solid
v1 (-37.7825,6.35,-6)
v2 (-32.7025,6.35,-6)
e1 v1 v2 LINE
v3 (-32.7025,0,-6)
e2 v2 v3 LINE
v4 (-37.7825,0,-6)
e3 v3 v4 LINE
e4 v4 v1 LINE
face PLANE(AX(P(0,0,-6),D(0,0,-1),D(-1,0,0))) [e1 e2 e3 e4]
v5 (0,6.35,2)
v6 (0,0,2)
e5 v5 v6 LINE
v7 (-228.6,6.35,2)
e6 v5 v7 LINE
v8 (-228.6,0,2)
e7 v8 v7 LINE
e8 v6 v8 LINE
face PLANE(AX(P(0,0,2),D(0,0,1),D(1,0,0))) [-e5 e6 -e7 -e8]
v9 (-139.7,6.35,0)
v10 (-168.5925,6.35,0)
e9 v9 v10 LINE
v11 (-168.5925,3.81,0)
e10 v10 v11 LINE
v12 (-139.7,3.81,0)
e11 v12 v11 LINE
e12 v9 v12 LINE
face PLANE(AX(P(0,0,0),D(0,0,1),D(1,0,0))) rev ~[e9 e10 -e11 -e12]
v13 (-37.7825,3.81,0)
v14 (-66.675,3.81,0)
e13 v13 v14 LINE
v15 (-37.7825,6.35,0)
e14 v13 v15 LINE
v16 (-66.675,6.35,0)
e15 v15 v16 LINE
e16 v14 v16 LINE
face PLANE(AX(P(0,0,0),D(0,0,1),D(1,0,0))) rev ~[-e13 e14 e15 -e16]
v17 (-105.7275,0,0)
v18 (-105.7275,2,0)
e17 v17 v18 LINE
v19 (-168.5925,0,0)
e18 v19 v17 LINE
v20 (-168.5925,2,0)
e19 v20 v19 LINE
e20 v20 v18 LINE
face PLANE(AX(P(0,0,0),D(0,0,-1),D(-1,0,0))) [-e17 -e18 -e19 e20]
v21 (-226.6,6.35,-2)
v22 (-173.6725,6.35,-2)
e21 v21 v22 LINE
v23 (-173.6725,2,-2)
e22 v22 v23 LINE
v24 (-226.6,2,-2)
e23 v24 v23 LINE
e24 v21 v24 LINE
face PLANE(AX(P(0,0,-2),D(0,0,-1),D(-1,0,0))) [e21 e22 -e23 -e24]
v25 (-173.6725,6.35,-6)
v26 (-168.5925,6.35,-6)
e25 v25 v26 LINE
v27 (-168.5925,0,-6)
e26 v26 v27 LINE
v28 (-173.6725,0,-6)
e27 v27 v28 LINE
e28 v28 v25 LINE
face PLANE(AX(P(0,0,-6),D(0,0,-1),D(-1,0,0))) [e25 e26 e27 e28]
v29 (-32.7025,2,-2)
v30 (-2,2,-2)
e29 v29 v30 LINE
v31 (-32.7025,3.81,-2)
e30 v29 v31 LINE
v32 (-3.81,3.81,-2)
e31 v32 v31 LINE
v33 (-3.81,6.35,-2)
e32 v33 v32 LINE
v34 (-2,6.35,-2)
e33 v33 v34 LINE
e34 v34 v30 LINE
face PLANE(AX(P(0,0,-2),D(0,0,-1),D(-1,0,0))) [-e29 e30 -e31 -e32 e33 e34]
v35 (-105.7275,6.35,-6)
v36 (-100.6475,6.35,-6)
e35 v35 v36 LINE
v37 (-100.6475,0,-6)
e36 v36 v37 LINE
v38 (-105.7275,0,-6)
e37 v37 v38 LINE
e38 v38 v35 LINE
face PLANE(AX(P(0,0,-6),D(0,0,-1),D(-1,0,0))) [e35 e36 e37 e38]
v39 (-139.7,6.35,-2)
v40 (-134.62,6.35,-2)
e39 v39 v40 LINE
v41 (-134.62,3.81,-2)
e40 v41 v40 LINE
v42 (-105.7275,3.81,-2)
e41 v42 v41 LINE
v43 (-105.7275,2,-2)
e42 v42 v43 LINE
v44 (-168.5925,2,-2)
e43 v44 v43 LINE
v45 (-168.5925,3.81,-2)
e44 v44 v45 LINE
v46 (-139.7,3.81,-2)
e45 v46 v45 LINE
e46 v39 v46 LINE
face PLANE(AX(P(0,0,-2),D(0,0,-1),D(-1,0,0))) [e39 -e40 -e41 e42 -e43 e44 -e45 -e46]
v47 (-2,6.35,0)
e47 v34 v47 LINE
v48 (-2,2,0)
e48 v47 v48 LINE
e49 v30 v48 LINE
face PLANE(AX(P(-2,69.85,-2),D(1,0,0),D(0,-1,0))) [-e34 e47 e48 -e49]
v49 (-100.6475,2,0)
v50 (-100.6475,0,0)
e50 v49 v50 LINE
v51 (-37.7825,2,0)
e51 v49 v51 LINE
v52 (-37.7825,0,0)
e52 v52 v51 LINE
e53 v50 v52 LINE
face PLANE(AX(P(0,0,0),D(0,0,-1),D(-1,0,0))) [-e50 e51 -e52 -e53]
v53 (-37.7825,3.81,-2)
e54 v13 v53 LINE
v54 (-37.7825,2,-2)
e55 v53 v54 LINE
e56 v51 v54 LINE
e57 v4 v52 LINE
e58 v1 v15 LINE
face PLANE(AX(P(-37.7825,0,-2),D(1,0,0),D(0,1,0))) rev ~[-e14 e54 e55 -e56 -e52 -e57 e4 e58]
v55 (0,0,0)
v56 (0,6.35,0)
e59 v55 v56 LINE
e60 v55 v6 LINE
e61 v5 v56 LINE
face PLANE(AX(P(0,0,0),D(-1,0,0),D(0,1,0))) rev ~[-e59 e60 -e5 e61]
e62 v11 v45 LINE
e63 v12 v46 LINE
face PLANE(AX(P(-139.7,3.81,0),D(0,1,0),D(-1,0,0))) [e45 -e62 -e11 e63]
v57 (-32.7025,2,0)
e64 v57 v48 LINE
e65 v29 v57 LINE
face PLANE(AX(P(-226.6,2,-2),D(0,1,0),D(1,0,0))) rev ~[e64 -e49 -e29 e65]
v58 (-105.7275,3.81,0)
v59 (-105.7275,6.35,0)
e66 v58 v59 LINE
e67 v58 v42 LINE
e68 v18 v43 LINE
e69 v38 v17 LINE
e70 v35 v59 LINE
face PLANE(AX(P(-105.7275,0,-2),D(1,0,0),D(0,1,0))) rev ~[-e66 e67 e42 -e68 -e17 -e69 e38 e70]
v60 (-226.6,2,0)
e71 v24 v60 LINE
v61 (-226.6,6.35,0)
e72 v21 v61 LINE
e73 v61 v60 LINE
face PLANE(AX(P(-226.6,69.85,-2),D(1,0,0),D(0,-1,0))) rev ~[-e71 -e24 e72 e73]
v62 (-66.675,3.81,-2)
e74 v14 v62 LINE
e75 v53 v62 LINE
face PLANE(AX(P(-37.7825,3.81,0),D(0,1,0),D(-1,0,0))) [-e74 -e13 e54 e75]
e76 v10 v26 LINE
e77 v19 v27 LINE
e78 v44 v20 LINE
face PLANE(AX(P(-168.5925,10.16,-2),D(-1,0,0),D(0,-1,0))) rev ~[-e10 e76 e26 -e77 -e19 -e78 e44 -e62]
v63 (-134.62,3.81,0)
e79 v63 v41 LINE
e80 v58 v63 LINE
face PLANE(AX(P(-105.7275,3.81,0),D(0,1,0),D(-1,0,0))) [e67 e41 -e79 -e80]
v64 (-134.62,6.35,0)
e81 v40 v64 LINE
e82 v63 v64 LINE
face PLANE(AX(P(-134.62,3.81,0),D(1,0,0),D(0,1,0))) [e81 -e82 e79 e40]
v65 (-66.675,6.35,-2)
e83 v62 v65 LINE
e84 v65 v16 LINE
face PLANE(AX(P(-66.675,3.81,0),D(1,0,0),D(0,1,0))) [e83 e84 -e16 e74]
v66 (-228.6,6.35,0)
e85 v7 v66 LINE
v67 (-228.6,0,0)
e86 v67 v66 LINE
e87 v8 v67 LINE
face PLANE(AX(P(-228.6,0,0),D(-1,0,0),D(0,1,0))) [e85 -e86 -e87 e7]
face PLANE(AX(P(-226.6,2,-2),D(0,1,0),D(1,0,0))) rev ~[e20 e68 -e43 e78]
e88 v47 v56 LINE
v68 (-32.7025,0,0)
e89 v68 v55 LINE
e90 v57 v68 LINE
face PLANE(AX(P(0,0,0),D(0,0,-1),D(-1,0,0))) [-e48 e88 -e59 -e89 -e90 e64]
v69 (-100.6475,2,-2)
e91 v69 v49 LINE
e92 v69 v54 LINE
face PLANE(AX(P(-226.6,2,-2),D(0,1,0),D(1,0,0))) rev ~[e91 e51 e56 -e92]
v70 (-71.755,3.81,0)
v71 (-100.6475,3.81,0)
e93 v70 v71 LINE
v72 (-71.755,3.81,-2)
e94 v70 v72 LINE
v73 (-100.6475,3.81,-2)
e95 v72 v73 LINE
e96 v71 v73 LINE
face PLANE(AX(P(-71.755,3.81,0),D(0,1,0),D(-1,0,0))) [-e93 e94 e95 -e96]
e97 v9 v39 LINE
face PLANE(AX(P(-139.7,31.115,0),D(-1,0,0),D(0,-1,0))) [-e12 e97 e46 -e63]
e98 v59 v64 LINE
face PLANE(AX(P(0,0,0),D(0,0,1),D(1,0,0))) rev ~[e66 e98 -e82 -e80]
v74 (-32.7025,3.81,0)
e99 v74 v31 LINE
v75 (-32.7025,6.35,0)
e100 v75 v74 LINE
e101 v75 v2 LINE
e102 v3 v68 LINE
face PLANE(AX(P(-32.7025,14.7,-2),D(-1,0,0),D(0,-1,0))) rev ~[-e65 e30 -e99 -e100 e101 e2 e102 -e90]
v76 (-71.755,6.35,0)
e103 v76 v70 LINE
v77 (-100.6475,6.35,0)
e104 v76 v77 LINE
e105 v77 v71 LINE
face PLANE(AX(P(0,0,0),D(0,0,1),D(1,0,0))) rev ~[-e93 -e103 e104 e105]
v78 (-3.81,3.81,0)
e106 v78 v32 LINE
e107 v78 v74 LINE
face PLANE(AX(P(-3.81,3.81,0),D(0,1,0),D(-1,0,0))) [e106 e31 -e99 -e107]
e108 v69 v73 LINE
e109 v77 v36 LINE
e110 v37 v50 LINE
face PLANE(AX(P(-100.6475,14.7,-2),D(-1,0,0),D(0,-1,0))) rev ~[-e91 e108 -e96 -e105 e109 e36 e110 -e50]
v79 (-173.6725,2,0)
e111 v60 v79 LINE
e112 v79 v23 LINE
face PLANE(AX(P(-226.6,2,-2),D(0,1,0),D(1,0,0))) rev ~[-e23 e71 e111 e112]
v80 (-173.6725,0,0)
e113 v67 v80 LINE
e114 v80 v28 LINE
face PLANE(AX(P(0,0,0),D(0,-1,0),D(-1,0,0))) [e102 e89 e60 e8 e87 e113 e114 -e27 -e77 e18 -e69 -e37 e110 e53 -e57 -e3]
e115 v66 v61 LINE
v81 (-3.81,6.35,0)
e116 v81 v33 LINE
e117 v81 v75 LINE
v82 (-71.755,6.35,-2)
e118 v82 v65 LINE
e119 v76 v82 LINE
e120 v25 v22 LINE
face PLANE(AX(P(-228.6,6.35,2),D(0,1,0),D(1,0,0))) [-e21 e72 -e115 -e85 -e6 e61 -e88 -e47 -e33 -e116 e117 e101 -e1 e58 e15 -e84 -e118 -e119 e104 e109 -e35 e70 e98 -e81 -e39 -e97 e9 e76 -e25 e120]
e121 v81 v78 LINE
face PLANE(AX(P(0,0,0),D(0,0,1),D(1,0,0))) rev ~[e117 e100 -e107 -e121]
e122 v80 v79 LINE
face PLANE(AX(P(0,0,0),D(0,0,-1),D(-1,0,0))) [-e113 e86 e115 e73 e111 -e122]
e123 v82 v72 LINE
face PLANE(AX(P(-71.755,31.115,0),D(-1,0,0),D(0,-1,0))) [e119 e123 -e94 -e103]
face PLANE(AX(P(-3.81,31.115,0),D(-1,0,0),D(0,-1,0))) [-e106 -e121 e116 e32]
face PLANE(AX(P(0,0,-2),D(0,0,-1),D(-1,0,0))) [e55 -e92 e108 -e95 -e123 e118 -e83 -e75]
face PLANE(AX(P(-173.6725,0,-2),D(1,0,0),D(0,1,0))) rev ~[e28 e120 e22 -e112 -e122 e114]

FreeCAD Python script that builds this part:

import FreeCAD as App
import Part
import Sketcher
from FreeCAD import Vector
Q = App.Units.Quantity

doc = App.newDocument("Part")
body = doc.addObject("PartDesign::Body", "Body")

# Sketch on XY plane
sketch1 = doc.addObject("Sketcher::SketchObject", "Sketch")
body.addObject(sketch1)
sketch1.AttachmentSupport = (doc.XY_Plane, [""])
sketch1.MapMode = "FlatFace"
sketch1.addGeometry([
    Part.LineSegment(Vector(-229, 0, 0), Vector(0, 0, 0)),  # 0
    Part.LineSegment(Vector(0, 0, 0), Vector(0, 70, 0)),  # 1
    Part.LineSegment(Vector(0, 70, 0), Vector(-229, 70, 0)),  # 2
    Part.LineSegment(Vector(-229, 70, 0), Vector(-229, 0, 0)),  # 3
    Part.Circle(Vector(-213, 18, 0), Vector(0, 0, 1), 7),  # 4
    Part.Circle(Vector(-182, 18, 0), Vector(0, 0, 1), 7),  # 5
    Part.LineSegment(Vector(-142, 29, 0), Vector(-142, 6, 0)),  # 6
    Part.LineSegment(Vector(-142, 6, 0), Vector(-166, 6, 0)),  # 7
    Part.LineSegment(Vector(-166, 6, 0), Vector(-166, 29, 0)),  # 8
    Part.LineSegment(Vector(-166, 29, 0), Vector(-142, 29, 0)),  # 9
    Part.LineSegment(Vector(-108, 29, 0), Vector(-108, 6, 0)),  # 10
    Part.LineSegment(Vector(-108, 6, 0), Vector(-132, 6, 0)),  # 11
    Part.LineSegment(Vector(-132, 6, 0), Vector(-132, 29, 0)),  # 12
    Part.LineSegment(Vector(-132, 29, 0), Vector(-108, 29, 0)),  # 13
    Part.LineSegment(Vector(-74, 29, 0), Vector(-74, 6, 0)),  # 14
    Part.LineSegment(Vector(-74, 6, 0), Vector(-98, 6, 0)),  # 15
    Part.LineSegment(Vector(-98, 6, 0), Vector(-98, 29, 0)),  # 16
    Part.LineSegment(Vector(-98, 29, 0), Vector(-74, 29, 0)),  # 17
    Part.LineSegment(Vector(-40, 29, 0), Vector(-40, 6, 0)),  # 18
    Part.LineSegment(Vector(-40, 6, 0), Vector(-64, 6, 0)),  # 19
    Part.LineSegment(Vector(-64, 6, 0), Vector(-64, 29, 0)),  # 20
    Part.LineSegment(Vector(-64, 29, 0), Vector(-40, 29, 0)),  # 21
    Part.LineSegment(Vector(-6, 29, 0), Vector(-6, 6, 0)),  # 22
    Part.LineSegment(Vector(-6, 6, 0), Vector(-30, 6, 0)),  # 23
    Part.LineSegment(Vector(-30, 6, 0), Vector(-30, 29, 0)),  # 24
    Part.LineSegment(Vector(-30, 29, 0), Vector(-6, 29, 0)),  # 25
    Part.Circle(Vector(-213, 37, 0), Vector(0, 0, 1), 7),  # 26
    Part.Circle(Vector(-182, 37, 0), Vector(0, 0, 1), 7),  # 27
    Part.LineSegment(Vector(-142, 62, 0), Vector(-142, 40, 0)),  # 28
    Part.LineSegment(Vector(-142, 40, 0), Vector(-166, 40, 0)),  # 29
    Part.LineSegment(Vector(-166, 40, 0), Vector(-166, 62, 0)),  # 30
    Part.LineSegment(Vector(-166, 62, 0), Vector(-142, 62, 0)),  # 31
    Part.LineSegment(Vector(-108, 62, 0), Vector(-108, 40, 0)),  # 32
    Part.LineSegment(Vector(-108, 40, 0), Vector(-132, 40, 0)),  # 33
    Part.LineSegment(Vector(-132, 40, 0), Vector(-132, 62, 0)),  # 34
    Part.LineSegment(Vector(-132, 62, 0), Vector(-108, 62, 0)),  # 35
    Part.Circle(Vector(-213, 56, 0), Vector(0, 0, 1), 7),  # 36
    Part.Circle(Vector(-182, 56, 0), Vector(0, 0, 1), 7),  # 37
    Part.LineSegment(Vector(-74, 62, 0), Vector(-74, 40, 0)),  # 38
    Part.LineSegment(Vector(-74, 40, 0), Vector(-98, 40, 0)),  # 39
    Part.LineSegment(Vector(-98, 40, 0), Vector(-98, 62, 0)),  # 40
    Part.LineSegment(Vector(-98, 62, 0), Vector(-74, 62, 0)),  # 41
    Part.LineSegment(Vector(-40, 62, 0), Vector(-40, 40, 0)),  # 42
    Part.LineSegment(Vector(-40, 40, 0), Vector(-64, 40, 0)),  # 43
    Part.LineSegment(Vector(-64, 40, 0), Vector(-64, 62, 0)),  # 44
    Part.LineSegment(Vector(-64, 62, 0), Vector(-40, 62, 0)),  # 45
    Part.LineSegment(Vector(-6, 62, 0), Vector(-6, 40, 0)),  # 46
    Part.LineSegment(Vector(-6, 40, 0), Vector(-30, 40, 0)),  # 47
    Part.LineSegment(Vector(-30, 40, 0), Vector(-30, 62, 0)),  # 48
    Part.LineSegment(Vector(-30, 62, 0), Vector(-6, 62, 0)),  # 49
], False)
sketch1.addConstraint([
    Sketcher.Constraint("Coincident", 0, 2, 1, 1),
    Sketcher.Constraint("Coincident", 1, 2, 2, 1),
    Sketcher.Constraint("Coincident", 2, 2, 3, 1),
    Sketcher.Constraint("Coincident", 3, 2, 0, 1),
    Sketcher.Constraint("Coincident", 6, 2, 7, 1),
    Sketcher.Constraint("Coincident", 7, 2, 8, 1),
    Sketcher.Constraint("Coincident", 8, 2, 9, 1),
    Sketcher.Constraint("Coincident", 9, 2, 6, 1),
    Sketcher.Constraint("Coincident", 10, 2, 11, 1),
    Sketcher.Constraint("Coincident", 11, 2, 12, 1),
    Sketcher.Constraint("Coincident", 12, 2, 13, 1),
    Sketcher.Constraint("Coincident", 13, 2, 10, 1),
    Sketcher.Constraint("Coincident", 14, 2, 15, 1),
    Sketcher.Constraint("Coincident", 15, 2, 16, 1),
    Sketcher.Constraint("Coincident", 16, 2, 17, 1),
    Sketcher.Constraint("Coincident", 17, 2, 14, 1),
    Sketcher.Constraint("Coincident", 18, 2, 19, 1),
    Sketcher.Constraint("Coincident", 19, 2, 20, 1),
    Sketcher.Constraint("Coincident", 20, 2, 21, 1),
    Sketcher.Constraint("Coincident", 21, 2, 18, 1),
    Sketcher.Constraint("Coincident", 22, 2, 23, 1),
    Sketcher.Constraint("Coincident", 23, 2, 24, 1),
    Sketcher.Constraint("Coincident", 24, 2, 25, 1),
    Sketcher.Constraint("Coincident", 25, 2, 22, 1),
    Sketcher.Constraint("Coincident", 28, 2, 29, 1),
    Sketcher.Constraint("Coincident", 29, 2, 30, 1),
    Sketcher.Constraint("Coincident", 30, 2, 31, 1),
    Sketcher.Constraint("Coincident", 31, 2, 28, 1),
    Sketcher.Constraint("Coincident", 32, 2, 33, 1),
    Sketcher.Constraint("Coincident", 33, 2, 34, 1),
    Sketcher.Constraint("Coincident", 34, 2, 35, 1),
    Sketcher.Constraint("Coincident", 35, 2, 32, 1),
    Sketcher.Constraint("Coincident", 38, 2, 39, 1),
    Sketcher.Constraint("Coincident", 39, 2, 40, 1),
    Sketcher.Constraint("Coincident", 40, 2, 41, 1),
    Sketcher.Constraint("Coincident", 41, 2, 38, 1),
    Sketcher.Constraint("Coincident", 42, 2, 43, 1),
    Sketcher.Constraint("Coincident", 43, 2, 44, 1),
    Sketcher.Constraint("Coincident", 44, 2, 45, 1),
    Sketcher.Constraint("Coincident", 45, 2, 42, 1),
    Sketcher.Constraint("Coincident", 46, 2, 47, 1),
    Sketcher.Constraint("Coincident", 47, 2, 48, 1),
    Sketcher.Constraint("Coincident", 48, 2, 49, 1),
    Sketcher.Constraint("Coincident", 49, 2, 46, 1),
    Sketcher.Constraint("Horizontal", 0),
    Sketcher.Constraint("Vertical", 1),
    Sketcher.Constraint("Horizontal", 2),
    Sketcher.Constraint("Vertical", 3),
    Sketcher.Constraint("Vertical", 6),
    Sketcher.Constraint("Horizontal", 7),
    Sketcher.Constraint("Vertical", 8),
    Sketcher.Constraint("Horizontal", 9),
    Sketcher.Constraint("Vertical", 10),
    Sketcher.Constraint("Horizontal", 11),
    Sketcher.Constraint("Vertical", 12),
    Sketcher.Constraint("Horizontal", 13),
    Sketcher.Constraint("Vertical", 14),
    Sketcher.Constraint("Horizontal", 15),
    Sketcher.Constraint("Vertical", 16),
    Sketcher.Constraint("Horizontal", 17),
    Sketcher.Constraint("Vertical", 18),
    Sketcher.Constraint("Horizontal", 19),
    Sketcher.Constraint("Vertical", 20),
    Sketcher.Constraint("Horizontal", 21),
    Sketcher.Constraint("Vertical", 22),
    Sketcher.Constraint("Horizontal", 23),
    Sketcher.Constraint("Vertical", 24),
    Sketcher.Constraint("Horizontal", 25),
    Sketcher.Constraint("Vertical", 28),
    Sketcher.Constraint("Horizontal", 29),
    Sketcher.Constraint("Vertical", 30),
    Sketcher.Constraint("Horizontal", 31),
    Sketcher.Constraint("Vertical", 32),
    Sketcher.Constraint("Horizontal", 33),
    Sketcher.Constraint("Vertical", 34),
    Sketcher.Constraint("Horizontal", 35),
    Sketcher.Constraint("Vertical", 38),
    Sketcher.Constraint("Horizontal", 39),
    Sketcher.Constraint("Vertical", 40),
    Sketcher.Constraint("Horizontal", 41),
    Sketcher.Constraint("Vertical", 42),
    Sketcher.Constraint("Horizontal", 43),
    Sketcher.Constraint("Vertical", 44),
    Sketcher.Constraint("Horizontal", 45),
    Sketcher.Constraint("Vertical", 46),
    Sketcher.Constraint("Horizontal", 47),
    Sketcher.Constraint("Vertical", 48),
    Sketcher.Constraint("Horizontal", 49),
    Sketcher.Constraint("Coincident", 0, 2, -1, 1),
    Sketcher.Constraint("Equal", 4, 5),
    Sketcher.Constraint("Equal", 5, 26),
    Sketcher.Constraint("Equal", 26, 27),
    Sketcher.Constraint("Equal", 27, 36),
    Sketcher.Constraint("Equal", 36, 37),
    Sketcher.Constraint("Horizontal", 4, 3, 5, 3),
    Sketcher.Constraint("Horizontal", 26, 3, 27, 3),
    Sketcher.Constraint("Horizontal", 36, 3, 37, 3),
    Sketcher.Constraint("Horizontal", 7, 2, 10, 2),
    Sketcher.Constraint("Horizontal", 9, 2, 12, 2),
    Sketcher.Constraint("Horizontal", 11, 2, 14, 2),
    Sketcher.Constraint("Horizontal", 13, 2, 16, 2),
    Sketcher.Constraint("Horizontal", 15, 2, 18, 2),
    Sketcher.Constraint("Horizontal", 17, 2, 20, 2),
    Sketcher.Constraint("Horizontal", 19, 2, 22, 2),
    Sketcher.Constraint("Horizontal", 21, 2, 24, 2),
    Sketcher.Constraint("Horizontal", 29, 2, 32, 2),
    Sketcher.Constraint("Horizontal", 31, 2, 34, 2),
    Sketcher.Constraint("Horizontal", 33, 2, 38, 2),
    Sketcher.Constraint("Horizontal", 35, 2, 40, 2),
    Sketcher.Constraint("Horizontal", 39, 2, 42, 2),
    Sketcher.Constraint("Horizontal", 41, 2, 44, 2),
    Sketcher.Constraint("Horizontal", 43, 2, 46, 2),
    Sketcher.Constraint("Horizontal", 45, 2, 48, 2),
    Sketcher.Constraint("Vertical", 4, 3, 26, 3),
    Sketcher.Constraint("Vertical", 5, 3, 27, 3),
    Sketcher.Constraint("Vertical", 26, 3, 36, 3),
    Sketcher.Constraint("Vertical", 27, 3, 37, 3),
    Sketcher.Constraint("Vertical", 9, 2, 28, 2),
    Sketcher.Constraint("Vertical", 8, 2, 29, 2),
    Sketcher.Constraint("Vertical", 13, 2, 32, 2),
    Sketcher.Constraint("Vertical", 12, 2, 33, 2),
    Sketcher.Constraint("Vertical", 17, 2, 38, 2),
    Sketcher.Constraint("Vertical", 16, 2, 39, 2),
    Sketcher.Constraint("Vertical", 21, 2, 42, 2),
    Sketcher.Constraint("Vertical", 20, 2, 43, 2),
    Sketcher.Constraint("Vertical", 25, 2, 46, 2),
    Sketcher.Constraint("Vertical", 24, 2, 47, 2),
    Sketcher.Constraint("Equal", 9, 11),
    Sketcher.Constraint("Equal", 13, 15),
    Sketcher.Constraint("Equal", 17, 19),
    Sketcher.Constraint("Equal", 21, 23),
    Sketcher.Constraint("Equal", 24, 28),
    Sketcher.Constraint("DistanceX", 0, 1, 0, 2, Q("9 in")),
    Sketcher.Constraint("Diameter", 4, Q("0.515 in")),
    Sketcher.Constraint("DistanceY", 1, 1, 1, 2, Q("2.75 in")),
    Sketcher.Constraint("DistanceX", 7, 2, 7, 1, Q("0.9375 in")),
    Sketcher.Constraint("DistanceY", 6, 2, 6, 1, Q("0.875 in")),
    Sketcher.Constraint("DistanceY", -1, 1, 6, 2, Q("0.25 in")),
    Sketcher.Constraint("DistanceX", 22, 2, -1, 1, Q("0.25 in")),
    Sketcher.Constraint("DistanceY", 4, 3, 26, 3, Q("0.75 in")),
    Sketcher.Constraint("DistanceY", 26, 3, 36, 3, Q("0.75 in")),
    Sketcher.Constraint("DistanceY", 6, 2, 28, 2, Q("1.325 in")),
    Sketcher.Constraint("DistanceX", 6, 2, -1, 1, Q("5.6 in")),
    Sketcher.Constraint("DistanceX", 11, 2, -1, 1, Q("5.2 in")),
    Sketcher.Constraint("DistanceY", 37, 3, 1, 2, Q("0.5575 in")),
    Sketcher.Constraint("DistanceX", 10, 2, 14, 2, Q("1.3375 in")),
    Sketcher.Constraint("DistanceX", 14, 2, 18, 2, Q("1.3375 in")),
    Sketcher.Constraint("DistanceX", 5, 3, 10, 2, Q("2.8906299 in")),
    Sketcher.Constraint("DistanceX", 4, 3, -1, 1, 212.963),
])
pad1 = doc.addObject("PartDesign::Pad", "Pad")
body.addObject(pad1)
pad1.Profile = sketch1
pad1.Length = 2

# Sketch on XY plane
sketch2 = doc.addObject("Sketcher::SketchObject", "Sketch001")
body.addObject(sketch2)
sketch2.AttachmentSupport = (doc.XY_Plane, [""])
sketch2.MapMode = "FlatFace"
sketch2.addGeometry([
    Part.LineSegment(Vector(-229, 0, 0), Vector(-229, 70, 0)),  # 0
    Part.LineSegment(Vector(-229, 70, 0), Vector(0, 70, 0)),  # 1
    Part.LineSegment(Vector(0, 70, 0), Vector(0, 0, 0)),  # 2
    Part.LineSegment(Vector(0, 0, 0), Vector(-229, 0, 0)),  # 3
    Part.LineSegment(Vector(-33, 4, 0), Vector(-4, 4, 0)),  # 4
    Part.LineSegment(Vector(-4, 4, 0), Vector(-4, 31, 0)),  # 5
    Part.LineSegment(Vector(-4, 31, 0), Vector(-33, 31, 0)),  # 6
    Part.LineSegment(Vector(-33, 31, 0), Vector(-33, 4, 0)),  # 7
    Part.LineSegment(Vector(-67, 4, 0), Vector(-38, 4, 0)),  # 8
    Part.LineSegment(Vector(-38, 4, 0), Vector(-38, 31, 0)),  # 9
    Part.LineSegment(Vector(-38, 31, 0), Vector(-67, 31, 0)),  # 10
    Part.LineSegment(Vector(-67, 31, 0), Vector(-67, 4, 0)),  # 11
    Part.LineSegment(Vector(-101, 4, 0), Vector(-72, 4, 0)),  # 12
    Part.LineSegment(Vector(-72, 4, 0), Vector(-72, 31, 0)),  # 13
    Part.LineSegment(Vector(-72, 31, 0), Vector(-101, 31, 0)),  # 14
    Part.LineSegment(Vector(-101, 31, 0), Vector(-101, 4, 0)),  # 15
    Part.LineSegment(Vector(-135, 4, 0), Vector(-106, 4, 0)),  # 16
    Part.LineSegment(Vector(-106, 4, 0), Vector(-106, 31, 0)),  # 17
    Part.LineSegment(Vector(-106, 31, 0), Vector(-135, 31, 0)),  # 18
    Part.LineSegment(Vector(-135, 31, 0), Vector(-135, 4, 0)),  # 19
    Part.LineSegment(Vector(-169, 4, 0), Vector(-140, 4, 0)),  # 20
    Part.LineSegment(Vector(-140, 4, 0), Vector(-140, 31, 0)),  # 21
    Part.LineSegment(Vector(-140, 31, 0), Vector(-169, 31, 0)),  # 22
    Part.LineSegment(Vector(-169, 31, 0), Vector(-169, 4, 0)),  # 23
    Part.Circle(Vector(-182, 18, 0), Vector(0, 0, 1), 9),  # 24
    Part.Circle(Vector(-213, 18, 0), Vector(0, 0, 1), 9),  # 25
    Part.LineSegment(Vector(-33, 37, 0), Vector(-4, 37, 0)),  # 26
    Part.LineSegment(Vector(-4, 37, 0), Vector(-4, 65, 0)),  # 27
    Part.LineSegment(Vector(-4, 65, 0), Vector(-33, 65, 0)),  # 28
    Part.LineSegment(Vector(-33, 65, 0), Vector(-33, 37, 0)),  # 29
    Part.LineSegment(Vector(-67, 37, 0), Vector(-38, 37, 0)),  # 30
    Part.LineSegment(Vector(-38, 37, 0), Vector(-38, 65, 0)),  # 31
    Part.LineSegment(Vector(-38, 65, 0), Vector(-67, 65, 0)),  # 32
    Part.LineSegment(Vector(-67, 65, 0), Vector(-67, 37, 0)),  # 33
    Part.LineSegment(Vector(-101, 37, 0), Vector(-72, 37, 0)),  # 34
    Part.LineSegment(Vector(-72, 37, 0), Vector(-72, 65, 0)),  # 35
    Part.LineSegment(Vector(-72, 65, 0), Vector(-101, 65, 0)),  # 36
    Part.LineSegment(Vector(-101, 65, 0), Vector(-101, 37, 0)),  # 37
    Part.LineSegment(Vector(-135, 37, 0), Vector(-106, 37, 0)),  # 38
    Part.LineSegment(Vector(-106, 37, 0), Vector(-106, 65, 0)),  # 39
    Part.LineSegment(Vector(-106, 65, 0), Vector(-135, 65, 0)),  # 40
    Part.LineSegment(Vector(-135, 65, 0), Vector(-135, 37, 0)),  # 41
    Part.LineSegment(Vector(-169, 37, 0), Vector(-140, 37, 0)),  # 42
    Part.LineSegment(Vector(-140, 37, 0), Vector(-140, 65, 0)),  # 43
    Part.LineSegment(Vector(-140, 65, 0), Vector(-169, 65, 0)),  # 44
    Part.LineSegment(Vector(-169, 65, 0), Vector(-169, 37, 0)),  # 45
    Part.Circle(Vector(-182, 37, 0), Vector(0, 0, 1), 9),  # 46
    Part.Circle(Vector(-213, 37, 0), Vector(0, 0, 1), 9),  # 47
    Part.Circle(Vector(-182, 56, 0), Vector(0, 0, 1), 9),  # 48
    Part.Circle(Vector(-213, 56, 0), Vector(0, 0, 1), 9),  # 49
], False)
sketch2.addConstraint([
    Sketcher.Constraint("Coincident", 0, 2, 1, 1),
    Sketcher.Constraint("Coincident", 1, 2, 2, 1),
    Sketcher.Constraint("Coincident", 2, 2, 3, 1),
    Sketcher.Constraint("Coincident", 3, 2, 0, 1),
    Sketcher.Constraint("Coincident", 4, 2, 5, 1),
    Sketcher.Constraint("Coincident", 5, 2, 6, 1),
    Sketcher.Constraint("Coincident", 6, 2, 7, 1),
    Sketcher.Constraint("Coincident", 7, 2, 4, 1),
    Sketcher.Constraint("Coincident", 8, 2, 9, 1),
    Sketcher.Constraint("Coincident", 9, 2, 10, 1),
    Sketcher.Constraint("Coincident", 10, 2, 11, 1),
    Sketcher.Constraint("Coincident", 11, 2, 8, 1),
    Sketcher.Constraint("Coincident", 12, 2, 13, 1),
    Sketcher.Constraint("Coincident", 13, 2, 14, 1),
    Sketcher.Constraint("Coincident", 14, 2, 15, 1),
    Sketcher.Constraint("Coincident", 15, 2, 12, 1),
    Sketcher.Constraint("Coincident", 16, 2, 17, 1),
    Sketcher.Constraint("Coincident", 17, 2, 18, 1),
    Sketcher.Constraint("Coincident", 18, 2, 19, 1),
    Sketcher.Constraint("Coincident", 19, 2, 16, 1),
    Sketcher.Constraint("Coincident", 20, 2, 21, 1),
    Sketcher.Constraint("Coincident", 21, 2, 22, 1),
    Sketcher.Constraint("Coincident", 22, 2, 23, 1),
    Sketcher.Constraint("Coincident", 23, 2, 20, 1),
    Sketcher.Constraint("Coincident", 26, 2, 27, 1),
    Sketcher.Constraint("Coincident", 27, 2, 28, 1),
    Sketcher.Constraint("Coincident", 28, 2, 29, 1),
    Sketcher.Constraint("Coincident", 29, 2, 26, 1),
    Sketcher.Constraint("Coincident", 30, 2, 31, 1),
    Sketcher.Constraint("Coincident", 31, 2, 32, 1),
    Sketcher.Constraint("Coincident", 32, 2, 33, 1),
    Sketcher.Constraint("Coincident", 33, 2, 30, 1),
    Sketcher.Constraint("Coincident", 34, 2, 35, 1),
    Sketcher.Constraint("Coincident", 35, 2, 36, 1),
    Sketcher.Constraint("Coincident", 36, 2, 37, 1),
    Sketcher.Constraint("Coincident", 37, 2, 34, 1),
    Sketcher.Constraint("Coincident", 38, 2, 39, 1),
    Sketcher.Constraint("Coincident", 39, 2, 40, 1),
    Sketcher.Constraint("Coincident", 40, 2, 41, 1),
    Sketcher.Constraint("Coincident", 41, 2, 38, 1),
    Sketcher.Constraint("Coincident", 42, 2, 43, 1),
    Sketcher.Constraint("Coincident", 43, 2, 44, 1),
    Sketcher.Constraint("Coincident", 44, 2, 45, 1),
    Sketcher.Constraint("Coincident", 45, 2, 42, 1),
    Sketcher.Constraint("Vertical", 0),
    Sketcher.Constraint("Horizontal", 1),
    Sketcher.Constraint("Vertical", 2),
    Sketcher.Constraint("Horizontal", 3),
    Sketcher.Constraint("Horizontal", 4),
    Sketcher.Constraint("Vertical", 5),
    Sketcher.Constraint("Horizontal", 6),
    Sketcher.Constraint("Vertical", 7),
    Sketcher.Constraint("Horizontal", 8),
    Sketcher.Constraint("Vertical", 9),
    Sketcher.Constraint("Horizontal", 10),
    Sketcher.Constraint("Vertical", 11),
    Sketcher.Constraint("Horizontal", 12),
    Sketcher.Constraint("Vertical", 13),
    Sketcher.Constraint("Horizontal", 14),
    Sketcher.Constraint("Vertical", 15),
    Sketcher.Constraint("Horizontal", 16),
    Sketcher.Constraint("Vertical", 17),
    Sketcher.Constraint("Horizontal", 18),
    Sketcher.Constraint("Vertical", 19),
    Sketcher.Constraint("Horizontal", 20),
    Sketcher.Constraint("Vertical", 21),
    Sketcher.Constraint("Horizontal", 22),
    Sketcher.Constraint("Vertical", 23),
    Sketcher.Constraint("Horizontal", 26),
    Sketcher.Constraint("Vertical", 27),
    Sketcher.Constraint("Horizontal", 28),
    Sketcher.Constraint("Vertical", 29),
    Sketcher.Constraint("Horizontal", 30),
    Sketcher.Constraint("Vertical", 31),
    Sketcher.Constraint("Horizontal", 32),
    Sketcher.Constraint("Vertical", 33),
    Sketcher.Constraint("Horizontal", 34),
    Sketcher.Constraint("Vertical", 35),
    Sketcher.Constraint("Horizontal", 36),
    Sketcher.Constraint("Vertical", 37),
    Sketcher.Constraint("Horizontal", 38),
    Sketcher.Constraint("Vertical", 39),
    Sketcher.Constraint("Horizontal", 40),
    Sketcher.Constraint("Vertical", 41),
    Sketcher.Constraint("Horizontal", 42),
    Sketcher.Constraint("Vertical", 43),
    Sketcher.Constraint("Horizontal", 44),
    Sketcher.Constraint("Vertical", 45),
    Sketcher.Constraint("Coincident", 2, 2, -1, 1),
    Sketcher.Constraint("Equal", 24, 25),
    Sketcher.Constraint("Equal", 25, 46),
    Sketcher.Constraint("Equal", 46, 47),
    Sketcher.Constraint("Equal", 47, 48),
    Sketcher.Constraint("Equal", 48, 49),
    Sketcher.Constraint("Horizontal", 24, 3, 25, 3),
    Sketcher.Constraint("Horizontal", 46, 3, 47, 3),
    Sketcher.Constraint("Horizontal", 48, 3, 49, 3),
    Sketcher.Constraint("Horizontal", 7, 2, 8, 2),
    Sketcher.Constraint("Horizontal", 6, 2, 9, 2),
    Sketcher.Constraint("Horizontal", 11, 2, 12, 2),
    Sketcher.Constraint("Horizontal", 10, 2, 13, 2),
    Sketcher.Constraint("Horizontal", 15, 2, 16, 2),
    Sketcher.Constraint("Horizontal", 14, 2, 17, 2),
    Sketcher.Constraint("Horizontal", 19, 2, 20, 2),
    Sketcher.Constraint("Horizontal", 18, 2, 21, 2),
    Sketcher.Constraint("Horizontal", 29, 2, 30, 2),
    Sketcher.Constraint("Horizontal", 28, 2, 31, 2),
    Sketcher.Constraint("Horizontal", 33, 2, 34, 2),
    Sketcher.Constraint("Horizontal", 32, 2, 35, 2),
    Sketcher.Constraint("Horizontal", 37, 2, 38, 2),
    Sketcher.Constraint("Horizontal", 36, 2, 39, 2),
    Sketcher.Constraint("Horizontal", 41, 2, 42, 2),
    Sketcher.Constraint("Horizontal", 40, 2, 43, 2),
    Sketcher.Constraint("Vertical", 24, 3, 46, 3),
    Sketcher.Constraint("Vertical", 25, 3, 47, 3),
    Sketcher.Constraint("Vertical", 46, 3, 48, 3),
    Sketcher.Constraint("Vertical", 47, 3, 49, 3),
    Sketcher.Constraint("Vertical", 5, 2, 26, 2),
    Sketcher.Constraint("Vertical", 7, 2, 28, 2),
    Sketcher.Constraint("Vertical", 9, 2, 30, 2),
    Sketcher.Constraint("Vertical", 11, 2, 32, 2),
    Sketcher.Constraint("Vertical", 13, 2, 34, 2),
    Sketcher.Constraint("Vertical", 15, 2, 36, 2),
    Sketcher.Constraint("Vertical", 17, 2, 38, 2),
    Sketcher.Constraint("Vertical", 19, 2, 40, 2),
    Sketcher.Constraint("Vertical", 21, 2, 42, 2),
    Sketcher.Constraint("Vertical", 23, 2, 44, 2),
    Sketcher.Constraint("Equal", 6, 8),
    Sketcher.Constraint("Equal", 10, 12),
    Sketcher.Constraint("Equal", 14, 16),
    Sketcher.Constraint("Equal", 18, 20),
    Sketcher.Constraint("Equal", 23, 27),
    Sketcher.Constraint("DistanceX", 1, 1, 1, 2, Q("9 in")),
    Sketcher.Constraint("Diameter", 24, Q("0.715 in")),
    Sketcher.Constraint("DistanceY", 0, 1, 0, 2, Q("2.75 in")),
    Sketcher.Constraint("DistanceX", 18, 2, -1, 1, Q("5.3 in")),
    Sketcher.Constraint("DistanceX", 20, 2, -1, 1, Q("5.5 in")),
    Sketcher.Constraint("DistanceY", 24, 3, 48, 3, Q("1.5 in")),
    Sketcher.Constraint("DistanceY", 4, 2, 1, 2, Q("2.6 in")),
    Sketcher.Constraint("DistanceX", 8, 2, 7, 2, Q("0.2 in")),
    Sketcher.Constraint("DistanceX", 12, 2, 11, 2, Q("0.2 in")),
    Sketcher.Constraint("DistanceX", 16, 2, 15, 2, Q("0.2 in")),
    Sketcher.Constraint("DistanceY", 27, 2, 1, 2, Q("0.2 in")),
    Sketcher.Constraint("DistanceY", 5, 1, 5, 2, Q("1.075 in")),
    Sketcher.Constraint("DistanceX", 4, 2, -1, 1, Q("0.15 in")),
    Sketcher.Constraint("DistanceY", 24, 3, 46, 3, Q("0.75 in")),
    Sketcher.Constraint("DistanceX", 46, 3, 22, 2, Q("0.5156299 in")),
    Sketcher.Constraint("DistanceY", -1, 1, 24, 3, Q("0.6925 in")),
    Sketcher.Constraint("DistanceX", 25, 3, -1, 1, 212.963),
])
pad2 = doc.addObject("PartDesign::Pad", "Pad001")
body.addObject(pad2)
pad2.Profile = sketch2
pad2.Length = 2
pad2.Reversed = True

# Sketch on XY plane
sketch3 = doc.addObject("Sketcher::SketchObject", "Sketch002")
body.addObject(sketch3)
sketch3.AttachmentSupport = (doc.XY_Plane, [""])
sketch3.MapMode = "FlatFace"
sketch3.AttachmentOffset = App.Placement(Vector(0, 0, -2), App.Rotation())
sketch3.addGeometry([
    Part.LineSegment(Vector(-2, 69.8, 0), Vector(0, 69.8, 0)),  # 0
    Part.LineSegment(Vector(0, 69.8, 0), Vector(0, 0, 0)),  # 1
    Part.LineSegment(Vector(0, 0, 0), Vector(-2, 0, 0)),  # 2
    Part.LineSegment(Vector(-2, 0, 0), Vector(-2, 69.8, 0)),  # 3
    Part.LineSegment(Vector(-228.6, 0, 0), Vector(-228.6, 69.8, 0)),  # 4
    Part.LineSegment(Vector(-228.6, 69.8, 0), Vector(-226.6, 69.8, 0)),  # 5
    Part.LineSegment(Vector(-226.6, 69.8, 0), Vector(-226.6, 0, 0)),  # 6
    Part.LineSegment(Vector(-226.6, 0, 0), Vector(-228.6, 0, 0)),  # 7
], False)
sketch3.addConstraint([
    Sketcher.Constraint("Coincident", 0, 2, 1, 1),
    Sketcher.Constraint("Coincident", 1, 2, 2, 1),
    Sketcher.Constraint("Coincident", 2, 2, 3, 1),
    Sketcher.Constraint("Coincident", 3, 2, 0, 1),
    Sketcher.Constraint("Coincident", 4, 2, 5, 1),
    Sketcher.Constraint("Coincident", 5, 2, 6, 1),
    Sketcher.Constraint("Coincident", 6, 2, 7, 1),
    Sketcher.Constraint("Coincident", 7, 2, 4, 1),
    Sketcher.Constraint("Horizontal", 0),
    Sketcher.Constraint("Vertical", 1),
    Sketcher.Constraint("Horizontal", 2),
    Sketcher.Constraint("Vertical", 3),
    Sketcher.Constraint("Vertical", 4),
    Sketcher.Constraint("Horizontal", 5),
    Sketcher.Constraint("Vertical", 6),
    Sketcher.Constraint("Horizontal", 7),
    Sketcher.Constraint("Coincident", 1, 2, -1, 1),
    Sketcher.Constraint("PointOnObject", 6, 2, -1),
    Sketcher.Constraint("Horizontal", 3, 2, 4, 2),
    Sketcher.Constraint("Equal", 2, 5),
    Sketcher.Constraint("DistanceX", 4, 2, -1, 1, Q("9 in")),
    Sketcher.Constraint("DistanceX", 0, 1, 0, 2, 2.0),
    Sketcher.Constraint("DistanceY", 1, 2, 1, 1, Q("2.75 in")),
])
pocket1 = doc.addObject("PartDesign::Pocket", "Pocket")
body.addObject(pocket1)
pocket1.Profile = sketch3
pocket1.Length = 2
pocket1.Reversed = True

# Sketch on XY plane
sketch4 = doc.addObject("Sketcher::SketchObject", "Sketch003")
body.addObject(sketch4)
sketch4.AttachmentSupport = (doc.XY_Plane, [""])
sketch4.MapMode = "FlatFace"
sketch4.AttachmentOffset = App.Placement(Vector(0, 0, -2), App.Rotation())
sketch4.addGeometry([
    Part.LineSegment(Vector(-2, 2, 0), Vector(-2, 0, 0)),  # 0
    Part.LineSegment(Vector(-2, 0, 0), Vector(-226.6, 0, 0)),  # 1
    Part.LineSegment(Vector(-226.6, 0, 0), Vector(-226.6, 2, 0)),  # 2
    Part.LineSegment(Vector(-226.6, 2, 0), Vector(-2, 2, 0)),  # 3
    Part.LineSegment(Vector(-2, 67.8, 0), Vector(-226.6, 67.8, 0)),  # 4
    Part.LineSegment(Vector(-226.6, 67.8, 0), Vector(-226.6, 69.8, 0)),  # 5
    Part.LineSegment(Vector(-226.6, 69.8, 0), Vector(-2, 69.8, 0)),  # 6
    Part.LineSegment(Vector(-2, 69.8, 0), Vector(-2, 67.8, 0)),  # 7
], False)
sketch4.addConstraint([
    Sketcher.Constraint("Coincident", 0, 2, 1, 1),
    Sketcher.Constraint("Coincident", 1, 2, 2, 1),
    Sketcher.Constraint("Coincident", 2, 2, 3, 1),
    Sketcher.Constraint("Coincident", 3, 2, 0, 1),
    Sketcher.Constraint("Coincident", 4, 2, 5, 1),
    Sketcher.Constraint("Coincident", 5, 2, 6, 1),
    Sketcher.Constraint("Coincident", 6, 2, 7, 1),
    Sketcher.Constraint("Coincident", 7, 2, 4, 1),
    Sketcher.Constraint("Vertical", 0),
    Sketcher.Constraint("Horizontal", 1),
    Sketcher.Constraint("Vertical", 2),
    Sketcher.Constraint("Horizontal", 3),
    Sketcher.Constraint("Horizontal", 4),
    Sketcher.Constraint("Vertical", 5),
    Sketcher.Constraint("Horizontal", 6),
    Sketcher.Constraint("Vertical", 7),
    Sketcher.Constraint("PointOnObject", 0, 2, -1),
    Sketcher.Constraint("Vertical", 2, 2, 4, 2),
    Sketcher.Constraint("Vertical", 3, 2, 6, 2),
    Sketcher.Constraint("Equal", 2, 5),
    Sketcher.Constraint("DistanceY", 0, 2, 0, 1, 2.0),
    Sketcher.Constraint("DistanceX", 0, 2, -1, 1, 2.0),
    Sketcher.Constraint("DistanceY", -1, 1, 5, 2, Q("2.75 in")),
    Sketcher.Constraint("DistanceX", 1, 2, 1, 1, 224.6),
])
pocket2 = doc.addObject("PartDesign::Pocket", "Pocket001")
body.addObject(pocket2)
pocket2.Profile = sketch4
pocket2.Length = 2
pocket2.Reversed = True

# Sketch on XY plane
sketch5 = doc.addObject("Sketcher::SketchObject", "Sketch004")
body.addObject(sketch5)
sketch5.AttachmentSupport = (doc.XY_Plane, [""])
sketch5.MapMode = "FlatFace"
sketch5.AttachmentOffset = App.Placement(Vector(0, 0, -2), App.Rotation())
sketch5.addGeometry([
    Part.LineSegment(Vector(-38, 0, 0), Vector(-38, 15, 0)),  # 0
    Part.LineSegment(Vector(-38, 15, 0), Vector(-33, 15, 0)),  # 1
    Part.LineSegment(Vector(-33, 15, 0), Vector(-33, 0, 0)),  # 2
    Part.LineSegment(Vector(-33, 0, 0), Vector(-38, 0, 0)),  # 3
    Part.LineSegment(Vector(-106, 0, 0), Vector(-106, 15, 0)),  # 4
    Part.LineSegment(Vector(-106, 15, 0), Vector(-101, 15, 0)),  # 5
    Part.LineSegment(Vector(-101, 15, 0), Vector(-101, 0, 0)),  # 6
    Part.LineSegment(Vector(-101, 0, 0), Vector(-106, 0, 0)),  # 7
    Part.LineSegment(Vector(-169, 10, 0), Vector(-169, 0, 0)),  # 8
    Part.LineSegment(Vector(-169, 0, 0), Vector(-174, 0, 0)),  # 9
    Part.LineSegment(Vector(-174, 0, 0), Vector(-174, 10, 0)),  # 10
    Part.LineSegment(Vector(-174, 10, 0), Vector(-169, 10, 0)),  # 11
], False)
sketch5.addConstraint([
    Sketcher.Constraint("Coincident", 0, 2, 1, 1),
    Sketcher.Constraint("Coincident", 1, 2, 2, 1),
    Sketcher.Constraint("Coincident", 2, 2, 3, 1),
    Sketcher.Constraint("Coincident", 3, 2, 0, 1),
    Sketcher.Constraint("Coincident", 4, 2, 5, 1),
    Sketcher.Constraint("Coincident", 5, 2, 6, 1),
    Sketcher.Constraint("Coincident", 6, 2, 7, 1),
    Sketcher.Constraint("Coincident", 7, 2, 4, 1),
    Sketcher.Constraint("Coincident", 8, 2, 9, 1),
    Sketcher.Constraint("Coincident", 9, 2, 10, 1),
    Sketcher.Constraint("Coincident", 10, 2, 11, 1),
    Sketcher.Constraint("Coincident", 11, 2, 8, 1),
    Sketcher.Constraint("Vertical", 0),
    Sketcher.Constraint("Horizontal", 1),
    Sketcher.Constraint("Vertical", 2),
    Sketcher.Constraint("Horizontal", 3),
    Sketcher.Constraint("Vertical", 4),
    Sketcher.Constraint("Horizontal", 5),
    Sketcher.Constraint("Vertical", 6),
    Sketcher.Constraint("Horizontal", 7),
    Sketcher.Constraint("Vertical", 8),
    Sketcher.Constraint("Horizontal", 9),
    Sketcher.Constraint("Vertical", 10),
    Sketcher.Constraint("Horizontal", 11),
    Sketcher.Constraint("PointOnObject", 2, 2, -1),
    Sketcher.Constraint("PointOnObject", 6, 2, -1),
    Sketcher.Constraint("PointOnObject", 8, 2, -1),
    Sketcher.Constraint("Horizontal", 1, 2, 4, 2),
    Sketcher.Constraint("Equal", 3, 5),
    Sketcher.Constraint("Equal", 7, 9),
    Sketcher.Constraint("DistanceX", 1, 1, 1, 2, Q("0.2 in")),
    Sketcher.Constraint("DistanceY", 8, 2, 8, 1, Q("0.4 in")),
    Sketcher.Constraint("DistanceX", 8, 2, 3, 2, Q("5.15 in")),
    Sketcher.Constraint("DistanceX", 4, 2, 0, 2, Q("2.675 in")),
    Sketcher.Constraint("DistanceY", 0, 1, 0, 2, 14.7),
    Sketcher.Constraint("DistanceX", 0, 2, -1, 1, Q("1.4875 in")),
])
pad3 = doc.addObject("PartDesign::Pad", "Pad002")
body.addObject(pad3)
pad3.Profile = sketch5
pad3.Type = "TwoLengths"
pad3.Length = 4
pad3.Length2 = 2
pad3.Reversed = True

# Sketch on XZ plane
sketch6 = doc.addObject("Sketcher::SketchObject", "Sketch005")
body.addObject(sketch6)
sketch6.AttachmentSupport = (doc.XZ_Plane, [""])
sketch6.MapMode = "FlatFace"
sketch6.AttachmentOffset = App.Placement(Vector(0, 0, -2.75 * 25.4), App.Rotation())
sketch6.addGeometry([
    Part.LineSegment(Vector(3, -9, 0), Vector(-230, -9, 0)),
    Part.LineSegment(Vector(-230, -9, 0), Vector(-230, 8, 0)),
    Part.LineSegment(Vector(-230, 8, 0), Vector(3, 8, 0)),
    Part.LineSegment(Vector(3, 8, 0), Vector(3, -9, 0)),
], False)
sketch6.addConstraint([
    Sketcher.Constraint("Coincident", 0, 2, 1, 1),
    Sketcher.Constraint("Coincident", 1, 2, 2, 1),
    Sketcher.Constraint("Coincident", 2, 2, 3, 1),
    Sketcher.Constraint("Coincident", 3, 2, 0, 1),
    Sketcher.Constraint("Horizontal", 0),
    Sketcher.Constraint("Vertical", 1),
    Sketcher.Constraint("Horizontal", 2),
    Sketcher.Constraint("Vertical", 3),
    Sketcher.Constraint("DistanceX", 0, 2, 0, 1, Q("9.1758 in")),
    Sketcher.Constraint("DistanceY", 1, 1, 1, 2, 17.0395),
    Sketcher.Constraint("DistanceY", -1, 1, 1, 2, Q("0.3249 in")),
    Sketcher.Constraint("DistanceX", 0, 2, -1, 1, 230.255),
])
pocket3 = doc.addObject("PartDesign::Pocket", "Pocket002")
body.addObject(pocket3)
pocket3.Profile = sketch6
pocket3.Length = Q("2.5 in")
pocket3.Reversed = True

doc.recompute()
